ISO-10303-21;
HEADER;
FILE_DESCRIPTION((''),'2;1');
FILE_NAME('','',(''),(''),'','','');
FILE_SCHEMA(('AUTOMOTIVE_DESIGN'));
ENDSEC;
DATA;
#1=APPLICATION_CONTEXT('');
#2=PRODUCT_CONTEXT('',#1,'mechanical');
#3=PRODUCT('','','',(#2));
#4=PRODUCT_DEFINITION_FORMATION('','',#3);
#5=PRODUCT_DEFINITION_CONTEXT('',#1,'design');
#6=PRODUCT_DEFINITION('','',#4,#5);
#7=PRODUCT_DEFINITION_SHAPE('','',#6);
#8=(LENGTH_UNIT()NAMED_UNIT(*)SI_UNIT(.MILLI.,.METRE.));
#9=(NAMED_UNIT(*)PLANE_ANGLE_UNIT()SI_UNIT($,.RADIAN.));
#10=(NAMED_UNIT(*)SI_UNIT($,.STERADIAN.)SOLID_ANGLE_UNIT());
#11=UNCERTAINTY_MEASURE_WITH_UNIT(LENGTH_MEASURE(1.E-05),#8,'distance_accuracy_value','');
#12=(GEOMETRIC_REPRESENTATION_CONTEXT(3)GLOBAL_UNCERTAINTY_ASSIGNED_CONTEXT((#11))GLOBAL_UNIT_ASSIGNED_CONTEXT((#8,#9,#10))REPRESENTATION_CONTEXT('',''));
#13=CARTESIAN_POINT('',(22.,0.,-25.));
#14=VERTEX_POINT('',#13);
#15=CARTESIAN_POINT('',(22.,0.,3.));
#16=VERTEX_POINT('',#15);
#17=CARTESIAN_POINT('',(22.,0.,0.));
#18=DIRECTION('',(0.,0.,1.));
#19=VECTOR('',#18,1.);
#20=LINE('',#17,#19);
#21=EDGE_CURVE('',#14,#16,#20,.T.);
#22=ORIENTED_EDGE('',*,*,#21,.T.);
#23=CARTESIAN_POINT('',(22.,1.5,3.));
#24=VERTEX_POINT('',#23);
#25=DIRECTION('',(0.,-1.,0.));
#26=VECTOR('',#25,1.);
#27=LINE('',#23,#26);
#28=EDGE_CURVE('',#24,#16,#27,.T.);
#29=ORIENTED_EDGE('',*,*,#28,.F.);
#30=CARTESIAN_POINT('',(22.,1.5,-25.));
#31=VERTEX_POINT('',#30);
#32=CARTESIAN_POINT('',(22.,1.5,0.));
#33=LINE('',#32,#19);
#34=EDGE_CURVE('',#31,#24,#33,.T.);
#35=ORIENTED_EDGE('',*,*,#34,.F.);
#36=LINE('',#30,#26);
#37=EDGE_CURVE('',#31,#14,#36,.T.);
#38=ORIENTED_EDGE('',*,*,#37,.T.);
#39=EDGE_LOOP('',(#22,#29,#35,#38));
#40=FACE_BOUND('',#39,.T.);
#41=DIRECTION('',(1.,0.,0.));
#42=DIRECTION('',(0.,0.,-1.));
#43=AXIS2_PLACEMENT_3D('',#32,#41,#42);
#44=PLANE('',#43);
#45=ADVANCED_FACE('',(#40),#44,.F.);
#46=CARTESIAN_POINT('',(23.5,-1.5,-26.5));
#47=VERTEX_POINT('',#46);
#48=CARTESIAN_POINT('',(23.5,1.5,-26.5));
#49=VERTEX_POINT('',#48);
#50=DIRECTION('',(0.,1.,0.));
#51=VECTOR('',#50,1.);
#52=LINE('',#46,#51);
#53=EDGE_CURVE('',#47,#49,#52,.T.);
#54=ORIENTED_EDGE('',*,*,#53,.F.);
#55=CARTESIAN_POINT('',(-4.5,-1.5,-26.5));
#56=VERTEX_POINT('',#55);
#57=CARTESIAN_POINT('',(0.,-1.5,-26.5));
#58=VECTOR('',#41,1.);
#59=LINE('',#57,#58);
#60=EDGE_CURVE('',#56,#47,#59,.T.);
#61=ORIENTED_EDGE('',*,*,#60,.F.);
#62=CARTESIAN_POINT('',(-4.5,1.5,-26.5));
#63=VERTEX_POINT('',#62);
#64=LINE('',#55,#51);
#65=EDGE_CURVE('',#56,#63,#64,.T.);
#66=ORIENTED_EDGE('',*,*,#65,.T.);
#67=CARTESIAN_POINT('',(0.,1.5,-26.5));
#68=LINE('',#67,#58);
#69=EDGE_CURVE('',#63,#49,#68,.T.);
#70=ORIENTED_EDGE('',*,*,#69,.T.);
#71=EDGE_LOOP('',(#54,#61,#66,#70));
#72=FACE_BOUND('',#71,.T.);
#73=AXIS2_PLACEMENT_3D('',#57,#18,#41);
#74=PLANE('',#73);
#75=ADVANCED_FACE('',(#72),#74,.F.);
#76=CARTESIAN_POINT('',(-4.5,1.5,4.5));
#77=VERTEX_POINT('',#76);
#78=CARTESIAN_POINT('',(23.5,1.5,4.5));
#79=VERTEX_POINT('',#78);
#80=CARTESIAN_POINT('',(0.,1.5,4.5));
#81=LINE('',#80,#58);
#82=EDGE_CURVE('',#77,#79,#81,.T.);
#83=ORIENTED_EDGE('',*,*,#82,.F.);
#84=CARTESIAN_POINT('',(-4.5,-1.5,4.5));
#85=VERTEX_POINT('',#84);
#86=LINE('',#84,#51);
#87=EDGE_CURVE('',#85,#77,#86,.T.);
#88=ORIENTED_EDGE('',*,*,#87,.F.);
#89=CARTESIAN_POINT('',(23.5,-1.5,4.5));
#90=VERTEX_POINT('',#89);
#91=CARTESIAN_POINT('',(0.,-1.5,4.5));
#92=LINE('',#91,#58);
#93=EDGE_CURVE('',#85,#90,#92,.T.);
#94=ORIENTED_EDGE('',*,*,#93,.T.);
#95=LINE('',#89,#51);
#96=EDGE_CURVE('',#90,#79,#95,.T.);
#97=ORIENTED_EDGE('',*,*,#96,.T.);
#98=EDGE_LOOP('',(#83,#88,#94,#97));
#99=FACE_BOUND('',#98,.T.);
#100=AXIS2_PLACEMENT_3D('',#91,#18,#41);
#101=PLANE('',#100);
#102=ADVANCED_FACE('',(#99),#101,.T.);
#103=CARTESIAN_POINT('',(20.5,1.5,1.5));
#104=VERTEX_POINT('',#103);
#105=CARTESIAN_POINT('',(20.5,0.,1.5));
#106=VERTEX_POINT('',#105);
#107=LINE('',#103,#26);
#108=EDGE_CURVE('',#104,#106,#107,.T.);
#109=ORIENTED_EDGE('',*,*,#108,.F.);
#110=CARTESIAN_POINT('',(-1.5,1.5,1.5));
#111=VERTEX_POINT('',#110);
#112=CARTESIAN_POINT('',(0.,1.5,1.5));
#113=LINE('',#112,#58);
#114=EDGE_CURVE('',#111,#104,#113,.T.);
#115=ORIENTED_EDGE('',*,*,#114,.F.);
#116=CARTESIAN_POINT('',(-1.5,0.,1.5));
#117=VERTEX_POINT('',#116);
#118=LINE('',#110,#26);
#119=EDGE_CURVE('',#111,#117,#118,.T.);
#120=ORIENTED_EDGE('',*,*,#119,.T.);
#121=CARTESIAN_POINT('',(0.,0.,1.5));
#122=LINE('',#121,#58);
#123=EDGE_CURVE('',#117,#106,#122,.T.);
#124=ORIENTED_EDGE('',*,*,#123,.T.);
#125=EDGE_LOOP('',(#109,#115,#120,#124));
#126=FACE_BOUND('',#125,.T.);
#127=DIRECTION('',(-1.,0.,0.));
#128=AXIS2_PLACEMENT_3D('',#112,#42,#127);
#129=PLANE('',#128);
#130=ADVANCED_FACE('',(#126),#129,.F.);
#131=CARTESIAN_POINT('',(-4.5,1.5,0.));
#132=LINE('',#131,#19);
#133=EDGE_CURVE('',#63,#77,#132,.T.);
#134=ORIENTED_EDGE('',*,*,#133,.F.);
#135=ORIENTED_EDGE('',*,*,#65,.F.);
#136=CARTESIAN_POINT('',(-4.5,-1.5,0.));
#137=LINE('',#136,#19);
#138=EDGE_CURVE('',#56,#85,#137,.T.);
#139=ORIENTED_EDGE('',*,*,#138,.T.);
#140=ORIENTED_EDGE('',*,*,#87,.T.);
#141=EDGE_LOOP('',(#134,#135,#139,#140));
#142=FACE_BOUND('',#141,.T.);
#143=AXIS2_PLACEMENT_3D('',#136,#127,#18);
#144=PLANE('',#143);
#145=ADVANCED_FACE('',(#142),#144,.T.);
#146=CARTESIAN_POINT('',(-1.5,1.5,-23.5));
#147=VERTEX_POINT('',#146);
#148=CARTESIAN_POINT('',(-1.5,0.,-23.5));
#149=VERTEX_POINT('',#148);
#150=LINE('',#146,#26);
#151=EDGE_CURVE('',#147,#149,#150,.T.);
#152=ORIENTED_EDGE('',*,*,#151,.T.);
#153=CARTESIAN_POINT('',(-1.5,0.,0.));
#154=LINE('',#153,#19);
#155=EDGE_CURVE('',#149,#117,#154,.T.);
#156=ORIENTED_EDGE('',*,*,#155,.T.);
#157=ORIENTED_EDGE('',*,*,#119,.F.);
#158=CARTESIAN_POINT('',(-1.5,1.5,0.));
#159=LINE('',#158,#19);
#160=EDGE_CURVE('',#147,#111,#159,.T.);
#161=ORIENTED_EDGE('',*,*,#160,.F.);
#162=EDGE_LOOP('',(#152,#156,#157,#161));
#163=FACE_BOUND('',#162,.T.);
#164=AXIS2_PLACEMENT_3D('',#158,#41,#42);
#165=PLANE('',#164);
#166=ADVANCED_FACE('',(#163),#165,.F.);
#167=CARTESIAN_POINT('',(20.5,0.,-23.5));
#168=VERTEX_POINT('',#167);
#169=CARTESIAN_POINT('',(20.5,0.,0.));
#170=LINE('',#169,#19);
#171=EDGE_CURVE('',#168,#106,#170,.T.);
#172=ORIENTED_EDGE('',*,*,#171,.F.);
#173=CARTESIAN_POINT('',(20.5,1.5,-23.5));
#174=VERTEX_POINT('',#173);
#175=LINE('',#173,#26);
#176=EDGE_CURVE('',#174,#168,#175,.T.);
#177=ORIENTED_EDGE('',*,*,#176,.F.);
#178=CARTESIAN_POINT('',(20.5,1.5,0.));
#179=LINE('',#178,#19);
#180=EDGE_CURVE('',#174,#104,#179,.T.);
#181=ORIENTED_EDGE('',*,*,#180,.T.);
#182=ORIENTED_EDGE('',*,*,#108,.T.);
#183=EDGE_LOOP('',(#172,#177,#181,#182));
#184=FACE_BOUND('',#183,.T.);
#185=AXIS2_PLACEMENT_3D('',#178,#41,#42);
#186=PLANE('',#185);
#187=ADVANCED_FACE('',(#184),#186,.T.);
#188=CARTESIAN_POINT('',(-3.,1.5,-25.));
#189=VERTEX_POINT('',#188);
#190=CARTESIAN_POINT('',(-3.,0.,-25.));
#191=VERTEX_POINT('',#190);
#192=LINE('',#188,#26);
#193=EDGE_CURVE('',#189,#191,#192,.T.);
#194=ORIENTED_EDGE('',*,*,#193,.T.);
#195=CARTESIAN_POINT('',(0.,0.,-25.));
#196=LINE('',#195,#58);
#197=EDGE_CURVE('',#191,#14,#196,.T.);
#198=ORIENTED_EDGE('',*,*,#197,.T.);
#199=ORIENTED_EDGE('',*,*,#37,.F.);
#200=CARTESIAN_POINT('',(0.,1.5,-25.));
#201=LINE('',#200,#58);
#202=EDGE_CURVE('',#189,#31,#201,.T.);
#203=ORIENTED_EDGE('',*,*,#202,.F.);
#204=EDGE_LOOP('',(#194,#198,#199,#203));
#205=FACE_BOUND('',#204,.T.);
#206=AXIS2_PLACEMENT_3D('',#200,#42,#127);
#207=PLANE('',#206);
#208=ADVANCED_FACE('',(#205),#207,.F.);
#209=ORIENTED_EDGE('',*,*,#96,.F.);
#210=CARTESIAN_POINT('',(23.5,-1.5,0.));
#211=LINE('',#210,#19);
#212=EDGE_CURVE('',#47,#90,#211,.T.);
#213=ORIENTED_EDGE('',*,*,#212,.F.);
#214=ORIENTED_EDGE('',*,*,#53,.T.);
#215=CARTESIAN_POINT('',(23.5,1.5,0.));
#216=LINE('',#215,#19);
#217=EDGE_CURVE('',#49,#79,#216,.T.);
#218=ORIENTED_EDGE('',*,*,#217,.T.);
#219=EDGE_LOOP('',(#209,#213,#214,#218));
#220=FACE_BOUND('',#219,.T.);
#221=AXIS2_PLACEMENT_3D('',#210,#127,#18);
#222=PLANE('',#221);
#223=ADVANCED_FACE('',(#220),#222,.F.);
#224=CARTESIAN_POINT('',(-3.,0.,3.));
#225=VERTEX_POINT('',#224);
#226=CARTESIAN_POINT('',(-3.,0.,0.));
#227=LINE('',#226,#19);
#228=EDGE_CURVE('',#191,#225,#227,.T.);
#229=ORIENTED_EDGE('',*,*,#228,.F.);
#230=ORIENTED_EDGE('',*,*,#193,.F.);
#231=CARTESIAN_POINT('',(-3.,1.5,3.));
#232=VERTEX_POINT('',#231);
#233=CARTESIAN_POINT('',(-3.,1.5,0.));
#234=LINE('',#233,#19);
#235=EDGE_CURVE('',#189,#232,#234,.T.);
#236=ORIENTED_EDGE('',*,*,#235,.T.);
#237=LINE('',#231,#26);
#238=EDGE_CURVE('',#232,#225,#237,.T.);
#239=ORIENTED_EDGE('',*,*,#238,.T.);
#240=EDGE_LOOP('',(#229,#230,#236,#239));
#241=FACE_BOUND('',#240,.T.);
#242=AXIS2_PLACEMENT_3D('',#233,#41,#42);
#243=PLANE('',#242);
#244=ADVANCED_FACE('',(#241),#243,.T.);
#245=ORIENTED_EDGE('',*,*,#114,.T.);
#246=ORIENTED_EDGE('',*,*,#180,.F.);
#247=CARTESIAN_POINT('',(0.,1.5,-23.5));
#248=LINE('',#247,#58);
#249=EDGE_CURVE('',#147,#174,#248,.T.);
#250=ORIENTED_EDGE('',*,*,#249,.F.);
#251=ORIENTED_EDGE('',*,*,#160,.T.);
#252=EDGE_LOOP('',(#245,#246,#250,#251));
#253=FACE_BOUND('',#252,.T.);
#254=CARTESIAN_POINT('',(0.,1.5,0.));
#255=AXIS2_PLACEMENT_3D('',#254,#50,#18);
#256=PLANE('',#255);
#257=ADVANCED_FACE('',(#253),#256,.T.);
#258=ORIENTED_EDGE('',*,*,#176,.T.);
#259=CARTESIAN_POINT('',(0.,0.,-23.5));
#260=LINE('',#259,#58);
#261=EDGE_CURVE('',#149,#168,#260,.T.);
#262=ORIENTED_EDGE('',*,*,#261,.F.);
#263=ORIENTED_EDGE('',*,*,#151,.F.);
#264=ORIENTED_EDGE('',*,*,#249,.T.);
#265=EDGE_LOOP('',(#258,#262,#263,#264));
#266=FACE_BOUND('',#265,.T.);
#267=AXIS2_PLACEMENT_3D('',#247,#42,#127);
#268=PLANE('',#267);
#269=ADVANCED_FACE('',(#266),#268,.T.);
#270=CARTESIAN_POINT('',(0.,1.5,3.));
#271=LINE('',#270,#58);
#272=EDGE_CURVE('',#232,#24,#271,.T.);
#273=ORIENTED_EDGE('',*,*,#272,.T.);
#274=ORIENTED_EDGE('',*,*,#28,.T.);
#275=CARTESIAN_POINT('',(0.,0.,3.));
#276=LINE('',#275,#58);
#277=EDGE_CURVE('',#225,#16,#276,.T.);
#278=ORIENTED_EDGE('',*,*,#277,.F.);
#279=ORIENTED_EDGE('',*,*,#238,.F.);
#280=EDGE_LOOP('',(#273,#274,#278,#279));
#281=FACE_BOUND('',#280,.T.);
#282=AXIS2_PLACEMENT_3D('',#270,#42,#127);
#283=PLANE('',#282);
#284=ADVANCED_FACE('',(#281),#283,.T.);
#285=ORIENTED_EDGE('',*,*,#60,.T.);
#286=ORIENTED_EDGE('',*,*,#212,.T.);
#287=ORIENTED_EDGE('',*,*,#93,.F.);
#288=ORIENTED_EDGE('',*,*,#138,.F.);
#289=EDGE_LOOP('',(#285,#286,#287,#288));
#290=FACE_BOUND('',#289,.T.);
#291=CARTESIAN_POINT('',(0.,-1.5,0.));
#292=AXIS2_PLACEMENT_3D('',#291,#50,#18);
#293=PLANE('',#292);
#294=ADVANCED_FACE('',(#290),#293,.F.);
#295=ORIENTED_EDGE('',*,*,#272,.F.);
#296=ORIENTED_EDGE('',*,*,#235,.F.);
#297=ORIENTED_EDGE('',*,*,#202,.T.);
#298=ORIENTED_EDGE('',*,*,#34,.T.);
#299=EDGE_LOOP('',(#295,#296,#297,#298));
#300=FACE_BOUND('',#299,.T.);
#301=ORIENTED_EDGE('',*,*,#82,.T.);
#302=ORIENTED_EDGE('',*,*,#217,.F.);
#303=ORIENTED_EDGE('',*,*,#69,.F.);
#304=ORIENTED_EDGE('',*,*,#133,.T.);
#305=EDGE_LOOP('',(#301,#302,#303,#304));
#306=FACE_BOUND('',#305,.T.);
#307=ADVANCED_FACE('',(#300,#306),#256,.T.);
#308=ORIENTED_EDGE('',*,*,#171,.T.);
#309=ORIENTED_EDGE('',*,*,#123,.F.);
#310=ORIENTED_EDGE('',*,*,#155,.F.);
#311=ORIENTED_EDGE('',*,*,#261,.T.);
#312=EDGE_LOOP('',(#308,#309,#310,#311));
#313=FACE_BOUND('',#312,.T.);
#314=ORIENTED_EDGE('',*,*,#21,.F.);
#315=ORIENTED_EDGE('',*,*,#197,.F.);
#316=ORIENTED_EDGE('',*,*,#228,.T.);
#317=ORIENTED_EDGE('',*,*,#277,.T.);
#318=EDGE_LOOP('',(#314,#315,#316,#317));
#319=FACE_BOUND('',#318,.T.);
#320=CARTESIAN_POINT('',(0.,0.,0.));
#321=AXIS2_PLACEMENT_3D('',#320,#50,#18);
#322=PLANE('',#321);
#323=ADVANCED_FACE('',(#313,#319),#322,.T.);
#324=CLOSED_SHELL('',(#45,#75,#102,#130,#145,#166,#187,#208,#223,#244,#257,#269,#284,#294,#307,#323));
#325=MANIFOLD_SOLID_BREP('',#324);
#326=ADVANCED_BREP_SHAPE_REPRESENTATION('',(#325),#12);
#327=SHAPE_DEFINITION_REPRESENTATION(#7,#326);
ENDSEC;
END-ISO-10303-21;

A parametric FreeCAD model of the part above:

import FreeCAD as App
import Part
import Sketcher


def add_polygon(sketch, points):
    """Adds a closed chain of lines whose ends are joined by coincident constraints."""
    first, n = sketch.GeometryCount, len(points)
    for a, b in zip(points, points[1:] + points[:1]):
        sketch.addGeometry(Part.LineSegment(App.Vector(*a, 0), App.Vector(*b, 0)), False)
    for i in range(n):
        sketch.addConstraint(Sketcher.Constraint("Coincident", first + i, 2, first + (i + 1) % n, 1))

doc = App.newDocument("Part")
body = doc.addObject("PartDesign::Body", "Body")

sketch1 = body.newObject("Sketcher::SketchObject", "Sketch")
sketch1.AttachmentSupport = (doc.getObject("XZ_Plane"), [""])
sketch1.MapMode = "FlatFace"
add_polygon(sketch1, [(24, -26), (-4, -26), (-4, 4), (24, 4)])
sketch1.addConstraint([
    Sketcher.Constraint("Horizontal", 0),
    Sketcher.Constraint("Vertical", 1),
    Sketcher.Constraint("Horizontal", 2),
    Sketcher.Constraint("Vertical", 3),
    Sketcher.Constraint("DistanceX", 0, 2, 0, 1, 28.0),
    Sketcher.Constraint("DistanceY", 1, 1, 1, 2, 31.0),
    Sketcher.Constraint("DistanceX", 0, 2, -1, 1, 4.5),
    Sketcher.Constraint("DistanceY", 0, 2, -1, 1, 26.5),
])
pad1 = body.newObject("PartDesign::Pad", "Pad")
pad1.Profile = sketch1
pad1.Length = 1.5

sketch2 = body.newObject("Sketcher::SketchObject", "Sketch001")
sketch2.AttachmentSupport = (doc.getObject("XZ_Plane"), [""])
sketch2.MapMode = "FlatFace"
add_polygon(sketch2, [(-4, 4), (24, 4), (24, -26), (-4, -26)])
add_polygon(sketch2, [(-3, -25), (22, -25), (22, 3), (-3, 3)])
add_polygon(sketch2, [(-2, -24), (-2, 2), (20, 2), (20, -24)])
sketch2.addConstraint([
    Sketcher.Constraint("Horizontal", 0),
    Sketcher.Constraint("Vertical", 1),
    Sketcher.Constraint("Horizontal", 2),
    Sketcher.Constraint("Vertical", 3),
    Sketcher.Constraint("Horizontal", 4),
    Sketcher.Constraint("Vertical", 5),
    Sketcher.Constraint("Horizontal", 6),
    Sketcher.Constraint("Vertical", 7),
    Sketcher.Constraint("Vertical", 8),
    Sketcher.Constraint("Horizontal", 9),
    Sketcher.Constraint("Vertical", 10),
    Sketcher.Constraint("Horizontal", 11),
    Sketcher.Constraint("Equal", 2, 5),
    Sketcher.Constraint("Equal", 6, 8),
    Sketcher.Constraint("DistanceX", 0, 1, 0, 2, 28.0),
    Sketcher.Constraint("DistanceX", 4, 1, 4, 2, 25.0),
    Sketcher.Constraint("DistanceX", 9, 1, 9, 2, 22.0),
    Sketcher.Constraint("DistanceY", 1, 2, 1, 1, 31.0),
    Sketcher.Constraint("DistanceX", -1, 1, 4, 2, 22.0),
    Sketcher.Constraint("DistanceY", 4, 2, -1, 1, 25.0),
    Sketcher.Constraint("DistanceX", 3, 2, 8, 2, 3.0),
    Sketcher.Constraint("DistanceY", 8, 2, 3, 2, 3.0),
    Sketcher.Constraint("DistanceX", -1, 1, 0, 2, 23.5),
    Sketcher.Constraint("DistanceY", -1, 1, 0, 2, 4.5),
])
pad2 = body.newObject("PartDesign::Pad", "Pad001")
pad2.Profile = sketch2
pad2.Length = 1.5
pad2.Reversed = True

doc.recompute()
